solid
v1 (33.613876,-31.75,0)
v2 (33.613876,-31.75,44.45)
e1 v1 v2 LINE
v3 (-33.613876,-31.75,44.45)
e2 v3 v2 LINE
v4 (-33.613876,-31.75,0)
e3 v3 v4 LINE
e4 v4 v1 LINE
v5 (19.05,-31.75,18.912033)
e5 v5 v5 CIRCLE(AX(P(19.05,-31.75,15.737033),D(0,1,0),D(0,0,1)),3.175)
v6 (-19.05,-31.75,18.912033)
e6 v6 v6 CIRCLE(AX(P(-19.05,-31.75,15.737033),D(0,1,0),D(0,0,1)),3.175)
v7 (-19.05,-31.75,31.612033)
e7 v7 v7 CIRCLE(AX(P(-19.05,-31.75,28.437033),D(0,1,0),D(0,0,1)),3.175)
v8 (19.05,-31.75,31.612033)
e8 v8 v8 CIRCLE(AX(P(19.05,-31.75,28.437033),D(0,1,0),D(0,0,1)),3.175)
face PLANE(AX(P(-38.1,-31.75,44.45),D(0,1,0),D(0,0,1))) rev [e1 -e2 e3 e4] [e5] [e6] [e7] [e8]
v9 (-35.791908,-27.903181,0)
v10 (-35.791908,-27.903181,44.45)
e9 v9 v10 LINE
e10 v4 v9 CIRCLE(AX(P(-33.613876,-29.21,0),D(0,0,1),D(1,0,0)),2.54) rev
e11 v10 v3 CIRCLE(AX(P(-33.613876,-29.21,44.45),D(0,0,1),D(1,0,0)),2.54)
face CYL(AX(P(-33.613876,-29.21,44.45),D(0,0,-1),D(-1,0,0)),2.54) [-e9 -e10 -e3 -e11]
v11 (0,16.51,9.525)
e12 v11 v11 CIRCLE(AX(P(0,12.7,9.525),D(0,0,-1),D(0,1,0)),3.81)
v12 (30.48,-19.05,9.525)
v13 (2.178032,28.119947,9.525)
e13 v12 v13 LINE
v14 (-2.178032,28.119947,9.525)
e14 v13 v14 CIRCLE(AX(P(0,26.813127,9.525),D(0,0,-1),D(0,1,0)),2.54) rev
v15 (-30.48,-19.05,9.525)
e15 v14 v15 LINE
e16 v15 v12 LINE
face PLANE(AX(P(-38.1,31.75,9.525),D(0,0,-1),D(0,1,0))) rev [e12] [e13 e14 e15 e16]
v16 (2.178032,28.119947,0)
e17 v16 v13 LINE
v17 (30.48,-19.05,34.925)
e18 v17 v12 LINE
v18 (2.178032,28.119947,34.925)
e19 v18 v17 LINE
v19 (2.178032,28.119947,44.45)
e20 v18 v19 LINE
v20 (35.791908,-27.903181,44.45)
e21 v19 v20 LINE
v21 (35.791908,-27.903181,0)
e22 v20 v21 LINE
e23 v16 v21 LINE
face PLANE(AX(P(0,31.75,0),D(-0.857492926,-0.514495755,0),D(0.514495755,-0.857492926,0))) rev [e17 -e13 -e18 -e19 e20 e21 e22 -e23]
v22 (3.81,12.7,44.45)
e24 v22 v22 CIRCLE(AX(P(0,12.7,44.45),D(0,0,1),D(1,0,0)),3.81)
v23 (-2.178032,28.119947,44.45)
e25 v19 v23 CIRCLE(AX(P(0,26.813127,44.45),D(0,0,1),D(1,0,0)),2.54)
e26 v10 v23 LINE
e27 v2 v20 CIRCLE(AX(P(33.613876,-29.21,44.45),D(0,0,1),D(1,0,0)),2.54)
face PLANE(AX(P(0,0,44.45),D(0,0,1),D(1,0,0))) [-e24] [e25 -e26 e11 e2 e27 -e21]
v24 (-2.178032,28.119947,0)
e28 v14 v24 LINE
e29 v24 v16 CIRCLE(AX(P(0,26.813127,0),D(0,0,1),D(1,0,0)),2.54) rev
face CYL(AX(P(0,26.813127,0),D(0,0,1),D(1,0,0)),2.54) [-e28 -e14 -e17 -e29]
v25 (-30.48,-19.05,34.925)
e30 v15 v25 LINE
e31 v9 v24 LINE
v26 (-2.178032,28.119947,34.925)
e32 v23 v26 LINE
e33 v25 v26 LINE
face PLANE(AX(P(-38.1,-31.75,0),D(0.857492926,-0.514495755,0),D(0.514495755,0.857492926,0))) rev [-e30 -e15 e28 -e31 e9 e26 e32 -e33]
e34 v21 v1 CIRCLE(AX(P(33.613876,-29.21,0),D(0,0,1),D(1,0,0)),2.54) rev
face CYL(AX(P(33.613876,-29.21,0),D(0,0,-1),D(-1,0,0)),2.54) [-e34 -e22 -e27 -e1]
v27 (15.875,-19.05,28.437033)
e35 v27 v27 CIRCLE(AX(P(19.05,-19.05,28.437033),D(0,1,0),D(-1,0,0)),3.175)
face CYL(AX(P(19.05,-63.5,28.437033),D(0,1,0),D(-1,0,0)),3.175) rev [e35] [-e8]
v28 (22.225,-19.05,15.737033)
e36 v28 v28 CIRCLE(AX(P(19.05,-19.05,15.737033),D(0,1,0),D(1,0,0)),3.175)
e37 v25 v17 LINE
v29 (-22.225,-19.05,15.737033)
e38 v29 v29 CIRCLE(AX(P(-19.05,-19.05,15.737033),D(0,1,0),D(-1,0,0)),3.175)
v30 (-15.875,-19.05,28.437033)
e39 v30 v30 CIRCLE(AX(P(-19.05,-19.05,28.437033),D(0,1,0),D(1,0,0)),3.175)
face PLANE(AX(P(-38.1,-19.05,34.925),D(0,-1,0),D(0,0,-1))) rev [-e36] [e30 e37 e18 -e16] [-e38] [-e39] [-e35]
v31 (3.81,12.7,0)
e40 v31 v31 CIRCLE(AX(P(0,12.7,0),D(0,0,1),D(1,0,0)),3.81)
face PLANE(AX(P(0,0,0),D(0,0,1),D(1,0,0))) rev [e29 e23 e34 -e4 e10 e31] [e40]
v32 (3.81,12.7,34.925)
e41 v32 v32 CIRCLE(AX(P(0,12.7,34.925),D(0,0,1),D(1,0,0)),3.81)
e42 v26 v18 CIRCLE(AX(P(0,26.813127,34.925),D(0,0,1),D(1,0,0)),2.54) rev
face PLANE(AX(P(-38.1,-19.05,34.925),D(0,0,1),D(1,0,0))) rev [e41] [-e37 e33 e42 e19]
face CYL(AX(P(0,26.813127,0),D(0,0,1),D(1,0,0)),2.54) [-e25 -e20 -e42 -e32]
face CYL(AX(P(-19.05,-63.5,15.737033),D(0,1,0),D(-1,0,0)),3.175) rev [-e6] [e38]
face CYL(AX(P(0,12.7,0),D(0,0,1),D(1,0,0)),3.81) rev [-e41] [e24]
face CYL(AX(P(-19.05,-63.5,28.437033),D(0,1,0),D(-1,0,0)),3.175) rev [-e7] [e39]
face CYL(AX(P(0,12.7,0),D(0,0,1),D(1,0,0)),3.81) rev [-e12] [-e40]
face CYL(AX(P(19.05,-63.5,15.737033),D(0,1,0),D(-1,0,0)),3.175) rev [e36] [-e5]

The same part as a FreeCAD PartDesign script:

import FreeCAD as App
import Part
import Sketcher
from FreeCAD import Vector
Q = App.Units.Quantity


def edges_at(feature, points):
    """Names of the edges that pass closest to the given points."""
    edges = feature.Shape.Edges
    near = lambda p: min(range(len(edges)), key=lambda i: edges[i].distToShape(Part.Vertex(*p))[0])
    return sorted({f"Edge{near(p) + 1}" for p in points})


def add_polygon(sketch, points):
    """Adds a closed chain of lines whose ends are joined by coincident constraints."""
    first, n = sketch.GeometryCount, len(points)
    for a, b in zip(points, points[1:] + points[:1]):
        sketch.addGeometry(Part.LineSegment(App.Vector(*a, 0), App.Vector(*b, 0)), False)
    for i in range(n):
        sketch.addConstraint(Sketcher.Constraint("Coincident", first + i, 2, first + (i + 1) % n, 1))

doc = App.newDocument("Part")
body = doc.addObject("PartDesign::Body", "Body")

# Sketch on XY plane
sketch1 = doc.addObject("Sketcher::SketchObject", "Sketch")
body.addObject(sketch1)
sketch1.AttachmentSupport = (doc.XY_Plane, [""])
sketch1.MapMode = "FlatFace"
add_polygon(sketch1, [(-38, 32), (-38, -32), (38, -32), (38, 32)])  # lines 0-3
sketch1.addConstraint(Sketcher.Constraint("Vertical", 0))
sketch1.addConstraint(Sketcher.Constraint("Horizontal", 1))
sketch1.addConstraint(Sketcher.Constraint("Vertical", 2))
sketch1.addConstraint(Sketcher.Constraint("Horizontal", 3))
sketch1.addConstraint(Sketcher.Constraint("Symmetric", 0, 2, 2, 2, -1, 1))
sketch1.addConstraint(Sketcher.Constraint("DistanceX", 1, 1, 1, 2, Q("3 in")))
sketch1.addConstraint(Sketcher.Constraint("DistanceY", 0, 2, 0, 1, Q("2.5 in")))
pad1 = doc.addObject("PartDesign::Pad", "Pad")
body.addObject(pad1)
pad1.Profile = sketch1
pad1.Length = Q("1.75 in")

# Sketch on YZ plane
sketch2 = doc.addObject("Sketcher::SketchObject", "Sketch001")
body.addObject(sketch2)
sketch2.AttachmentSupport = (doc.YZ_Plane, [""])
sketch2.MapMode = "FlatFace"
sketch2.AttachmentOffset = App.Placement(Vector(0, 0, 1.5 * 25.4), App.Rotation())
add_polygon(sketch2, [(32, 35), (-19, 35), (-19, 10), (32, 10)])  # lines 0-3
sketch2.addConstraint(Sketcher.Constraint("Horizontal", 0))
sketch2.addConstraint(Sketcher.Constraint("Vertical", 1))
sketch2.addConstraint(Sketcher.Constraint("Horizontal", 2))
sketch2.addConstraint(Sketcher.Constraint("Vertical", 3))
sketch2.addConstraint(Sketcher.Constraint("DistanceX", 0, 2, 0, 1, Q("2 in")))
sketch2.addConstraint(Sketcher.Constraint("DistanceY", 1, 2, 1, 1, Q("1 in")))
sketch2.addConstraint(Sketcher.Constraint("DistanceX", 0, 2, -1, 1, Q("0.75 in")))
sketch2.addConstraint(Sketcher.Constraint("DistanceY", -1, 1, 0, 2, Q("1.375 in")))
pocket1 = doc.addObject("PartDesign::Pocket", "Pocket")
body.addObject(pocket1)
pocket1.Profile = sketch2
pocket1.Type = "ThroughAll"

# Sketch on XY plane
sketch3 = doc.addObject("Sketcher::SketchObject", "Sketch002")
body.addObject(sketch3)
sketch3.AttachmentSupport = (doc.XY_Plane, [""])
sketch3.MapMode = "FlatFace"
sketch3.AttachmentOffset = App.Placement(Vector(0, 0, 1.75 * 25.4), App.Rotation())
add_polygon(sketch3, [(-38, -32), (0, 32), (-38, 32)])  # lines 0-2
sketch3.addConstraint(Sketcher.Constraint("Horizontal", 1))
sketch3.addConstraint(Sketcher.Constraint("Vertical", 2))
sketch3.addConstraint(Sketcher.Constraint("PointOnObject", 0, 2, -2))
sketch3.addConstraint(Sketcher.Constraint("DistanceX", 1, 2, 1, 1, Q("1.5 in")))
sketch3.addConstraint(Sketcher.Constraint("DistanceY", 2, 2, 2, 1, Q("2.5 in")))
sketch3.addConstraint(Sketcher.Constraint("DistanceY", -1, 1, 0, 2, Q("1.25 in")))
pocket2 = doc.addObject("PartDesign::Pocket", "Pocket001")
body.addObject(pocket2)
pocket2.Profile = sketch3
pocket2.Length = Q("1.75 in")

# Sketch on XY plane
sketch4 = doc.addObject("Sketcher::SketchObject", "Sketch003")
body.addObject(sketch4)
sketch4.AttachmentSupport = (doc.XY_Plane, [""])
sketch4.MapMode = "FlatFace"
sketch4.AttachmentOffset = App.Placement(Vector(0, 0, 1.75 * 25.4), App.Rotation())
add_polygon(sketch4, [(0, 32), (38, -32), (38, 32)])  # lines 0-2
sketch4.addConstraint(Sketcher.Constraint("Vertical", 1))
sketch4.addConstraint(Sketcher.Constraint("Horizontal", 2))
sketch4.addConstraint(Sketcher.Constraint("PointOnObject", 2, 2, -2))
sketch4.addConstraint(Sketcher.Constraint("DistanceX", 2, 2, 2, 1, Q("1.5 in")))
sketch4.addConstraint(Sketcher.Constraint("DistanceY", 1, 1, 1, 2, Q("2.5 in")))
sketch4.addConstraint(Sketcher.Constraint("DistanceY", 0, 2, -1, 1, Q("1.25 in")))
pocket3 = doc.addObject("PartDesign::Pocket", "Pocket002")
body.addObject(pocket3)
pocket3.Profile = sketch4
pocket3.Type = "ThroughAll"

# Sketch on XZ plane
sketch5 = doc.addObject("Sketcher::SketchObject", "Sketch004")
body.addObject(sketch5)
sketch5.AttachmentSupport = (doc.XZ_Plane, [""])
sketch5.MapMode = "FlatFace"
sketch5.AttachmentOffset = App.Placement(Vector(0, 0, 0.75 * 25.4), App.Rotation())
sketch5.addGeometry(Part.Circle(Vector(-19.1, 15.7, 0), Vector(0, 0, 1), 3.2), False)
sketch5.addGeometry(Part.Circle(Vector(19.1, 15.7, 0), Vector(0, 0, 1), 3.2), False)
sketch5.addGeometry(Part.Circle(Vector(19.1, 28.4, 0), Vector(0, 0, 1), 3.2), False)
sketch5.addGeometry(Part.Circle(Vector(-19.1, 28.4, 0), Vector(0, 0, 1), 3.2), False)
sketch5.addConstraint(Sketcher.Constraint("Equal", 0, 1))
sketch5.addConstraint(Sketcher.Constraint("Equal", 1, 2))
sketch5.addConstraint(Sketcher.Constraint("Equal", 2, 3))
sketch5.addConstraint(Sketcher.Constraint("Symmetric", 0, 3, 1, 3, -2))
sketch5.addConstraint(Sketcher.Constraint("Symmetric", 2, 3, 3, 3, -2))
sketch5.addConstraint(Sketcher.Constraint("Vertical", 1, 3, 2, 3))
sketch5.addConstraint(Sketcher.Constraint("Diameter", 0, Q("0.25 in")))
sketch5.addConstraint(Sketcher.Constraint("DistanceX", 0, 3, 1, 3, Q("1.5 in")))
sketch5.addConstraint(Sketcher.Constraint("DistanceY", 1, 3, 2, 3, Q("0.5 in")))
sketch5.addConstraint(Sketcher.Constraint("DistanceY", -1, 1, 0, 3, 15.737033))
pocket4 = doc.addObject("PartDesign::Pocket", "Pocket003")
body.addObject(pocket4)
pocket4.Profile = sketch5
pocket4.Length = Q("1.75 in")
pocket4.Reversed = True

# Sketch on XY plane
sketch6 = doc.addObject("Sketcher::SketchObject", "Sketch005")
body.addObject(sketch6)
sketch6.AttachmentSupport = (doc.XY_Plane, [""])
sketch6.MapMode = "FlatFace"
sketch6.AttachmentOffset = App.Placement(Vector(0, 0, 1.75 * 25.4), App.Rotation())
sketch6.addGeometry(Part.Circle(Vector(0, 12.7, 0), Vector(0, 0, 1), 3.8), False)
sketch6.addConstraint(Sketcher.Constraint("PointOnObject", 0, 3, -2))
sketch6.addConstraint(Sketcher.Constraint("Diameter", 0, Q("0.3 in")))
sketch6.addConstraint(Sketcher.Constraint("DistanceY", -1, 1, 0, 3, Q("0.5 in")))
pocket5 = doc.addObject("PartDesign::Pocket", "Pocket004")
body.addObject(pocket5)
pocket5.Profile = sketch6
pocket5.Type = "ThroughAll"
doc.recompute()

fillet = doc.addObject("PartDesign::Fillet", "Fillet")
body.addObject(fillet)
fillet.Base = (pocket5, edges_at(pocket5, [
    (0, 31.75, 4.763),
    (0, 31.75, 39.688),
    (38.1, -31.75, 22.225),
    (-38.1, -31.75, 22.225),
]))
fillet.Radius = Q("0.1 in")

doc.recompute()
